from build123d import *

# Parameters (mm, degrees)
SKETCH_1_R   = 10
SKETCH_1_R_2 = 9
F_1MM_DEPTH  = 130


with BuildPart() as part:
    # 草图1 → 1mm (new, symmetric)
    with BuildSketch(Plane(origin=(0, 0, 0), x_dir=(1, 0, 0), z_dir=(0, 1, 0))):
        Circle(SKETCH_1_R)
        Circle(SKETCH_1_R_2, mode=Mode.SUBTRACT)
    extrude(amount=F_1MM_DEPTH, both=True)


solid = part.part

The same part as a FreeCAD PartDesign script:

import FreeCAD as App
import Part
import Sketcher

V = App.Vector
Q = App.Units.Quantity

doc = App.newDocument("Part")
body = doc.addObject("PartDesign::Body", "Body")

# Sketch on XZ plane
sketch1 = doc.addObject("Sketcher::SketchObject", "Sketch")
body.addObject(sketch1)
sketch1.AttachmentSupport = (doc.XZ_Plane, [""])
sketch1.MapMode = "FlatFace"
sketch1.addGeometry([
    Part.Circle(V(0, 0, 0), V(0, 0, 1), 10),
    Part.Circle(V(0, 0, 0), V(0, 0, 1), 9),
], False)
sketch1.addConstraint([
    Sketcher.Constraint("Coincident", 0, 3, -1, 1),
    Sketcher.Constraint("Coincident", 1, 3, -1, 1),
    Sketcher.Constraint("Diameter", 0, Q("20 mm")),
    Sketcher.Constraint("Diameter", 1, Q("18 mm")),
])
pad1 = doc.addObject("PartDesign::Pad", "Pad")
body.addObject(pad1)
pad1.Profile = sketch1
pad1.Length = 260
pad1.Midplane = True

doc.recompute()
